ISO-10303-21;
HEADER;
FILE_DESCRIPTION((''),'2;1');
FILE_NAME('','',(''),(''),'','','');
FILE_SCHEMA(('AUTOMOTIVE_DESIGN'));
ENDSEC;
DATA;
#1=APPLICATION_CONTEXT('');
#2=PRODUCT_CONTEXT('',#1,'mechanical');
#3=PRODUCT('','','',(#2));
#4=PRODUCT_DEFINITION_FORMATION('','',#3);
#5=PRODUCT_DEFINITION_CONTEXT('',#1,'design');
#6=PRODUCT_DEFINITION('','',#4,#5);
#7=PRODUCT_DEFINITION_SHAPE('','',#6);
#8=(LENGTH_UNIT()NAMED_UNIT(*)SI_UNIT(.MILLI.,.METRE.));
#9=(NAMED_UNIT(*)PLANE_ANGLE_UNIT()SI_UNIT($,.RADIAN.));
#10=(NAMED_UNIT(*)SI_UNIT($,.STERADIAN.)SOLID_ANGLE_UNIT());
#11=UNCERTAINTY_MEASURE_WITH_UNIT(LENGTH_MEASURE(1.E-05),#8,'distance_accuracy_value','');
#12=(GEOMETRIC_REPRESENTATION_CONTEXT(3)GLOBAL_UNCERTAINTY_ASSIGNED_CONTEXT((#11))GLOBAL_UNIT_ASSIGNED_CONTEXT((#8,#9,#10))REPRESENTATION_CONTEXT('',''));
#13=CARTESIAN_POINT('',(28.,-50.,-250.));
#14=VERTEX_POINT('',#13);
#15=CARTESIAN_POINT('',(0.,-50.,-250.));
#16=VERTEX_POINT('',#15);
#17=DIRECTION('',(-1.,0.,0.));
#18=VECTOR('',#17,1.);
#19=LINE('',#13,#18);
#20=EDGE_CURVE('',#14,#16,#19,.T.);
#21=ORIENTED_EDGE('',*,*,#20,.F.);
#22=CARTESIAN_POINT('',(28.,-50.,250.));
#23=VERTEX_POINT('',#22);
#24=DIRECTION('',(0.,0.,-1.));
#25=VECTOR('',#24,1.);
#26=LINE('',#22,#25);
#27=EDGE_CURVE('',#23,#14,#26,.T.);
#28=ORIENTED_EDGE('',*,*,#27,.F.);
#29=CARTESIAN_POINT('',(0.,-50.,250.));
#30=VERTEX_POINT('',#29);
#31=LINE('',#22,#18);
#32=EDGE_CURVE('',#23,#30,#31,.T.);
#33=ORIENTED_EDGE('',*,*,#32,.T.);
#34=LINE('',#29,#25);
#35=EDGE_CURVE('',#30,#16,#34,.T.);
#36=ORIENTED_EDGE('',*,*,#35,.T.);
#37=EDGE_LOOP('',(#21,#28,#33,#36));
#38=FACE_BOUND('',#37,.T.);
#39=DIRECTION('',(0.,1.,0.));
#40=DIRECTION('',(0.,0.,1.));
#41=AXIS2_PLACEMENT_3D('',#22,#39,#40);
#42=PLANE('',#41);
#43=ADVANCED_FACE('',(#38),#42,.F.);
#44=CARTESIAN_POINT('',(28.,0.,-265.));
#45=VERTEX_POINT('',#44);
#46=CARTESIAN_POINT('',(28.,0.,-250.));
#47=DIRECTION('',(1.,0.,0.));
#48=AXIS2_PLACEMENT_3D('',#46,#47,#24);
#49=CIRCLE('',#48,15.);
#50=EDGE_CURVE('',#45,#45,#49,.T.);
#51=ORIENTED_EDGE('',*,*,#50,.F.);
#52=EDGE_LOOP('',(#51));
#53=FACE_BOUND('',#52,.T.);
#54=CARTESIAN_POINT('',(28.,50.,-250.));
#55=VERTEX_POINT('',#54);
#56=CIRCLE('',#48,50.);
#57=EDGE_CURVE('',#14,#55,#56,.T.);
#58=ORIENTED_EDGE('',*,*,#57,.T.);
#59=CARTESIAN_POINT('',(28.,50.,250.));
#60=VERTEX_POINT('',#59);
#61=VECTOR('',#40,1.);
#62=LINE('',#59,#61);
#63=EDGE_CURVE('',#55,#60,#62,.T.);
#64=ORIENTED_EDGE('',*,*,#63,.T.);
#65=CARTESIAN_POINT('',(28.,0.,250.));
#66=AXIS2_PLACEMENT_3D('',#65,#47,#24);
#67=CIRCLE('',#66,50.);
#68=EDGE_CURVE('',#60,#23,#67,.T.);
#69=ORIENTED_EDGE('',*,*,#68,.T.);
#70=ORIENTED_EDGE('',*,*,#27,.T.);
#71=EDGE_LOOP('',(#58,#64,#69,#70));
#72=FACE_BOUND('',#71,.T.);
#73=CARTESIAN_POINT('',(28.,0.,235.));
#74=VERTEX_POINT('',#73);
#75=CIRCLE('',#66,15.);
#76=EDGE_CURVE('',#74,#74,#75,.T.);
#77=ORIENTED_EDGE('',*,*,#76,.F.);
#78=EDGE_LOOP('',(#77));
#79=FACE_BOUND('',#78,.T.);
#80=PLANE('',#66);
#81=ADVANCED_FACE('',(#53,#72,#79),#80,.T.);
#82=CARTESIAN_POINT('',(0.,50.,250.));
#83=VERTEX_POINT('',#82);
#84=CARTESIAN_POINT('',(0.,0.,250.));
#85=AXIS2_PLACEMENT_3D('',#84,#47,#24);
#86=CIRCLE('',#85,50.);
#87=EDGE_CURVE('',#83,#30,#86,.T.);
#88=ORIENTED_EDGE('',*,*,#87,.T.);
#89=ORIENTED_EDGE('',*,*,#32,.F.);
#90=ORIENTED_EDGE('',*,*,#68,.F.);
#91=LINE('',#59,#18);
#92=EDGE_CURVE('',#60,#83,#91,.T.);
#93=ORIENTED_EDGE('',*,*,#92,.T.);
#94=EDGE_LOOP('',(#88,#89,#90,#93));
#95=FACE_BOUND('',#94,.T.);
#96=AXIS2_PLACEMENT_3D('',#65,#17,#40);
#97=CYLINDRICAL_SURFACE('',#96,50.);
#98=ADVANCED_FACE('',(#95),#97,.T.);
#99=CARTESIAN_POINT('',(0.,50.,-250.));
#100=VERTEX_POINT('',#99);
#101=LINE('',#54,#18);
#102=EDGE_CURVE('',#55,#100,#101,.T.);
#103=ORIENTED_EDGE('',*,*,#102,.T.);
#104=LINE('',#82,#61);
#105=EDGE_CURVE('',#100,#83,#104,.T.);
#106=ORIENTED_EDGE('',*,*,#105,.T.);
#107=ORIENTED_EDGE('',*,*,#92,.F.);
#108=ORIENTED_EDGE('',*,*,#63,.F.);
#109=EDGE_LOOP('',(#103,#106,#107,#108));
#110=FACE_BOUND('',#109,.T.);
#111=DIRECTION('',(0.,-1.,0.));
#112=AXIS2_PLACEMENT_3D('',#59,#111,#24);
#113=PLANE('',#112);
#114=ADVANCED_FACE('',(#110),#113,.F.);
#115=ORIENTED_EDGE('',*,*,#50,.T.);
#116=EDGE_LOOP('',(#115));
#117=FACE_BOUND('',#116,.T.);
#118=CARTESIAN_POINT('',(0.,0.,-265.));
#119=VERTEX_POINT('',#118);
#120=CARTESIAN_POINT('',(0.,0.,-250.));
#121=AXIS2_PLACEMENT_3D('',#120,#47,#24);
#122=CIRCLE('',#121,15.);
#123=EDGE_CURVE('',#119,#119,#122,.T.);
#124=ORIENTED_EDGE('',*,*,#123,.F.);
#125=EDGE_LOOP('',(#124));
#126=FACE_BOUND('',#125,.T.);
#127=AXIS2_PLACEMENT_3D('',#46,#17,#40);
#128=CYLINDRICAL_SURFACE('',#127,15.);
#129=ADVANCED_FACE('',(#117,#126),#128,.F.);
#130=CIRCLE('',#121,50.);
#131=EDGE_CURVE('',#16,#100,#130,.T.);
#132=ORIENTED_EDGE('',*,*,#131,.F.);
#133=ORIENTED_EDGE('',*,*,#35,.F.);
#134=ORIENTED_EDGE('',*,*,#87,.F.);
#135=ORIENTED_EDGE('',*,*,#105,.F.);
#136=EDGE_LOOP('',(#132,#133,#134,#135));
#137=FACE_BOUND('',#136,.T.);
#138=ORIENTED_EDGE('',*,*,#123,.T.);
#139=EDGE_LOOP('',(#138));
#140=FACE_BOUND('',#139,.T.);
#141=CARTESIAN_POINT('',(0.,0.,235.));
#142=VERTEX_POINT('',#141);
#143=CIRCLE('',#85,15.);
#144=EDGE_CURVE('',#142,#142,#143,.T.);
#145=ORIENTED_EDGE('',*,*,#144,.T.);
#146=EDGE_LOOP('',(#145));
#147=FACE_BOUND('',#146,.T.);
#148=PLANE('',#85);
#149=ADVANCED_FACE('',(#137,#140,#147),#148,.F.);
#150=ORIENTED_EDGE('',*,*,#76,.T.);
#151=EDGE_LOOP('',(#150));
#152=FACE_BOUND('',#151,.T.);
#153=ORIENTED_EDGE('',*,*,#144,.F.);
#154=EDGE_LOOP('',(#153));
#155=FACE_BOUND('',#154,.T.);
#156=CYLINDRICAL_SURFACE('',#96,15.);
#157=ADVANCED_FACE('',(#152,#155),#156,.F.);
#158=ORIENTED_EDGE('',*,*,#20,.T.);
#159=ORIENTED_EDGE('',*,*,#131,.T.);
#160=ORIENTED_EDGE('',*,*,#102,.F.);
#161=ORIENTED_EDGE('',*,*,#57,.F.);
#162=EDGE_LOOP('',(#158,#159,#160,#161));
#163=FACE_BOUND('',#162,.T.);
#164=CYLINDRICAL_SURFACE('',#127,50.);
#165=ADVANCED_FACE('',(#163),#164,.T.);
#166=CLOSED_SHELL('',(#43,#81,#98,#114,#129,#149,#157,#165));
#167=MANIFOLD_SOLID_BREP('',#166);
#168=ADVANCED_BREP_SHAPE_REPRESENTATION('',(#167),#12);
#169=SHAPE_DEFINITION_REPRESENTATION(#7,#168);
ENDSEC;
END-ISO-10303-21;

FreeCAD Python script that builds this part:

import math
import FreeCAD as App
import Part
import Sketcher
from FreeCAD import Vector

doc = App.newDocument("Part")
body = doc.addObject("PartDesign::Body", "Body")

# Sketch on YZ plane
sketch1 = doc.addObject("Sketcher::SketchObject", "Sketch")
body.addObject(sketch1)
sketch1.AttachmentSupport = (doc.YZ_Plane, [""])
sketch1.MapMode = "FlatFace"
sketch1.addGeometry(Part.LineSegment(Vector(50, -250, 0), Vector(50, 250, 0)), False)
sketch1.addGeometry(Part.ArcOfCircle(Part.Circle(Vector(0, 250, 0), Vector(0, 0, 1), 50), math.radians(0), math.radians(180)), False)
sketch1.addGeometry(Part.LineSegment(Vector(-50, 250, 0), Vector(-50, -250, 0)), False)
sketch1.addGeometry(Part.ArcOfCircle(Part.Circle(Vector(0, -250, 0), Vector(0, 0, 1), 50), math.radians(180), math.radians(360)), False)
sketch1.addGeometry(Part.Circle(Vector(0, -250, 0), Vector(0, 0, 1), 15), False)
sketch1.addGeometry(Part.Circle(Vector(0, 250, 0), Vector(0, 0, 1), 15), False)
sketch1.addConstraint(Sketcher.Constraint("Tangent", 0, 2, 1, 1))
sketch1.addConstraint(Sketcher.Constraint("Tangent", 1, 2, 2, 1))
sketch1.addConstraint(Sketcher.Constraint("Tangent", 2, 2, 3, 1))
sketch1.addConstraint(Sketcher.Constraint("Tangent", 3, 2, 0, 1))
sketch1.addConstraint(Sketcher.Constraint("Vertical", 0))
sketch1.addConstraint(Sketcher.Constraint("Vertical", 2))
sketch1.addConstraint(Sketcher.Constraint("Coincident", 4, 3, 3, 3))
sketch1.addConstraint(Sketcher.Constraint("Coincident", 5, 3, 1, 3))
sketch1.addConstraint(Sketcher.Constraint("Equal", 4, 5))
sketch1.addConstraint(Sketcher.Constraint("Symmetric", 1, 3, 3, 3, -1, 1))
sketch1.addConstraint(Sketcher.Constraint("Diameter", 4, 30.0))
sketch1.addConstraint(Sketcher.Constraint("Radius", 1, 50.0))
sketch1.addConstraint(Sketcher.Constraint("DistanceY", 0, 1, 0, 2, 500.0))
pad1 = doc.addObject("PartDesign::Pad", "Pad")
body.addObject(pad1)
pad1.Profile = sketch1
pad1.Length = 28

doc.recompute()
